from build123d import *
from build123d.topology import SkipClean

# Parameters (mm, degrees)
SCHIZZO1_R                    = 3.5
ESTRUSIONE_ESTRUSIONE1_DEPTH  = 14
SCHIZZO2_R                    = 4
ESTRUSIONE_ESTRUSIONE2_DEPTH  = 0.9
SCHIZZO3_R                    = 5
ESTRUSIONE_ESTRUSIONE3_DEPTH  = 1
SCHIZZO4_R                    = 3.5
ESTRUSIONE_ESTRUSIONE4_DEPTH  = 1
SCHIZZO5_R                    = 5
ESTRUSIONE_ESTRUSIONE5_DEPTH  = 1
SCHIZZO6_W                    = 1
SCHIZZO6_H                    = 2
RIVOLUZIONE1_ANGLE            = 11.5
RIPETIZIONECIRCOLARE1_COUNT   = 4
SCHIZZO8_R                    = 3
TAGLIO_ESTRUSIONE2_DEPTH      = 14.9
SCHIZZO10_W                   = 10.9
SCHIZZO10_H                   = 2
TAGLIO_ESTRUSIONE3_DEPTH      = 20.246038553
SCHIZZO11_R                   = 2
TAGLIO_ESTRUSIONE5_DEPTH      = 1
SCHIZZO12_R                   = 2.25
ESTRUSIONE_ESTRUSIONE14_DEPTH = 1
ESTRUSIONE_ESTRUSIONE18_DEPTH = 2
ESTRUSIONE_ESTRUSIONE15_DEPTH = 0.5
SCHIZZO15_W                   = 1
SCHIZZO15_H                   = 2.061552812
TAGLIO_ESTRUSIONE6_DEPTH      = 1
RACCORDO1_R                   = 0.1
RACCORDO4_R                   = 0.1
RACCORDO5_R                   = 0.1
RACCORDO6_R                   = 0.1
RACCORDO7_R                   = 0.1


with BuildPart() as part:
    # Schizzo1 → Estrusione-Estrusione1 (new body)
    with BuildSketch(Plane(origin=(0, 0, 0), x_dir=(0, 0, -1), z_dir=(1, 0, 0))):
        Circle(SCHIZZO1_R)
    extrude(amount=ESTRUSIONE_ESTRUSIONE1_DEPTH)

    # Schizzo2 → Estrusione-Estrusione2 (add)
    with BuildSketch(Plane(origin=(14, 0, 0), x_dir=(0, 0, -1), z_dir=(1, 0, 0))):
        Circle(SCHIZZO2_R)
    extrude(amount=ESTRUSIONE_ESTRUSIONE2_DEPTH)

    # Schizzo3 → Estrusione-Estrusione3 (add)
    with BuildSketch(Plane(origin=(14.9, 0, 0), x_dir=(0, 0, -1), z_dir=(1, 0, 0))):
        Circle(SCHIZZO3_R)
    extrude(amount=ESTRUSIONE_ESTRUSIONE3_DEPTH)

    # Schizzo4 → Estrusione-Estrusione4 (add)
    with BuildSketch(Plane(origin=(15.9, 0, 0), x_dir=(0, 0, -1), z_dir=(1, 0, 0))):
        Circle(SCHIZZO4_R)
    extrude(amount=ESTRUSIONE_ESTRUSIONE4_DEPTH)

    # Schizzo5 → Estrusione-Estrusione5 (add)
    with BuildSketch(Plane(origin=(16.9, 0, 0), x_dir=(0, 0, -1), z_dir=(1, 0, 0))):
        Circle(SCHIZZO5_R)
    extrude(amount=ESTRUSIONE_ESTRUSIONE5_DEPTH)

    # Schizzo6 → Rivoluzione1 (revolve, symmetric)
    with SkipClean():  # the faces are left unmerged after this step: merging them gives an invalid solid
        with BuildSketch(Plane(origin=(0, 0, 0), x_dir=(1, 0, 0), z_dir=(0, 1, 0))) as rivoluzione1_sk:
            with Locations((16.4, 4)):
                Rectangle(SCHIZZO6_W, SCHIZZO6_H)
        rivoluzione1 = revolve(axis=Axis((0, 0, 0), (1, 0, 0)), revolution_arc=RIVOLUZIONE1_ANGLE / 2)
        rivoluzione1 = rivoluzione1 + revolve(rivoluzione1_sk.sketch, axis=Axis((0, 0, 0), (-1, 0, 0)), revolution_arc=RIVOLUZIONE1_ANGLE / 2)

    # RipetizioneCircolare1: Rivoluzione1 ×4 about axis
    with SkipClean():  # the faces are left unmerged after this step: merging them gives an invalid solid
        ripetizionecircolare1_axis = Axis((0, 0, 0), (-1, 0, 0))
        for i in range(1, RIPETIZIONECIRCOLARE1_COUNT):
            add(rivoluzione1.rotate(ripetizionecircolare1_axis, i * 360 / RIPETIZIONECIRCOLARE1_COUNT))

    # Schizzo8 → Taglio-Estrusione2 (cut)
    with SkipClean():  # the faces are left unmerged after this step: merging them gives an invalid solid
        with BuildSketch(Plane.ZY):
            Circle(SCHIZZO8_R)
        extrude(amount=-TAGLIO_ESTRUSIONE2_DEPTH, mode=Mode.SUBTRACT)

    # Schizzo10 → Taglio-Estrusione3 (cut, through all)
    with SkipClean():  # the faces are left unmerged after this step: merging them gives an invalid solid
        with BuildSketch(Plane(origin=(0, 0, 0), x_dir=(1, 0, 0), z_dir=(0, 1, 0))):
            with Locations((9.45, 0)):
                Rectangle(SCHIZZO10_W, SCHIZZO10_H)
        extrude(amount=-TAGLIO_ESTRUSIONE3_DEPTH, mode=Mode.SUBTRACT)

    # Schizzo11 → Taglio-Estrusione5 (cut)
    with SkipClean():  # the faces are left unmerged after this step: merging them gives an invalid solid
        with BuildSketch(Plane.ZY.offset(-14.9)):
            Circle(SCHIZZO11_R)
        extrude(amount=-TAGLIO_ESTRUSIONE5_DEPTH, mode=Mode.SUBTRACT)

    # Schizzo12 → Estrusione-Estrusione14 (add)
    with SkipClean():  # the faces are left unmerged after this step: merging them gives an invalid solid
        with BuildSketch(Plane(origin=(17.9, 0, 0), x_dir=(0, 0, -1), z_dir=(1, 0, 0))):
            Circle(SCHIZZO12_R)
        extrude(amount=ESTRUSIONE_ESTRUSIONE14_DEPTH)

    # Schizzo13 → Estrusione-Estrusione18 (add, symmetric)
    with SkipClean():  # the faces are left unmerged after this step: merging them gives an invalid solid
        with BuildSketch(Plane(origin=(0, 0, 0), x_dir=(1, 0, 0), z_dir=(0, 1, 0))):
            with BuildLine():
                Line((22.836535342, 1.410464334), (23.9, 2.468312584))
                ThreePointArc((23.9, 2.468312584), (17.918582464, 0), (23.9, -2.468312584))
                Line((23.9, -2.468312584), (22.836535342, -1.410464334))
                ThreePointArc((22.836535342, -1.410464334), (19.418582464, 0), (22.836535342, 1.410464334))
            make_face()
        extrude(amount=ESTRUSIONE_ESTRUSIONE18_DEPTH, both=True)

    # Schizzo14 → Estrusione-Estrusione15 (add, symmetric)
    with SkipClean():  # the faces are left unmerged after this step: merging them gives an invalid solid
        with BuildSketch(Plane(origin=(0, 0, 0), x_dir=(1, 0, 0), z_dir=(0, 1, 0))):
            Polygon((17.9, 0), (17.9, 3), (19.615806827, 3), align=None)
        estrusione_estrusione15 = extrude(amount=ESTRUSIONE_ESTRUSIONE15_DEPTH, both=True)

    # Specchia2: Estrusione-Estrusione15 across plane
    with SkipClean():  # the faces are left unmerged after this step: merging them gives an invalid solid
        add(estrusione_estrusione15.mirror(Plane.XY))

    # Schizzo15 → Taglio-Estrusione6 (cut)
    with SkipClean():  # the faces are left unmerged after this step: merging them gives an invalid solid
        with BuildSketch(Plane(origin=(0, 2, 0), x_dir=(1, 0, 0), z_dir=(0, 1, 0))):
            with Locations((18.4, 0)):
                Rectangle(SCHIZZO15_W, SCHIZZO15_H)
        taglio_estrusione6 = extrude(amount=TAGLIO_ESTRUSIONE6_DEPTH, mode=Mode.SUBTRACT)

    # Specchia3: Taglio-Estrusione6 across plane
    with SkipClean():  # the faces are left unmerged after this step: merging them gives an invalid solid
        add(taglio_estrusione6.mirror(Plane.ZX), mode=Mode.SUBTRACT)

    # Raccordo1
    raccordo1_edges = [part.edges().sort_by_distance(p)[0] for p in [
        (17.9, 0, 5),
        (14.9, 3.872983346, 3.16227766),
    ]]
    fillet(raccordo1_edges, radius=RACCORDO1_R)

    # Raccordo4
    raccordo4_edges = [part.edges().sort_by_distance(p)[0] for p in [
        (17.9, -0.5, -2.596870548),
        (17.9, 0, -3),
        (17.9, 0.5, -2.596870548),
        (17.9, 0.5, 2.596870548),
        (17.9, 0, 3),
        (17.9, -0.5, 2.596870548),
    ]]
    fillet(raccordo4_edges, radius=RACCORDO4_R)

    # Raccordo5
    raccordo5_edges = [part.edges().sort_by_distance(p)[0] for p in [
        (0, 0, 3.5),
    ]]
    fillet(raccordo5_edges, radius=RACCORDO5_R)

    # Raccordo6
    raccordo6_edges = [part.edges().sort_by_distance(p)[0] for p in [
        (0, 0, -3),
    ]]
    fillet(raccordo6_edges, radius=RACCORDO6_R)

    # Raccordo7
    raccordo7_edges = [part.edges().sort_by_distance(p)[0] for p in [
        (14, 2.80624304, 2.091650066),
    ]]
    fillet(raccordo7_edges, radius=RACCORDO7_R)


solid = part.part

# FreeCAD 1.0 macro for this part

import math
import FreeCAD as App
import Part
import Sketcher


def edges_at(feature, points):
    """Names of the edges that pass closest to the given points."""
    edges = feature.Shape.Edges
    near = lambda p: min(range(len(edges)), key=lambda i: edges[i].distToShape(Part.Vertex(*p))[0])
    return sorted({f"Edge{near(p) + 1}" for p in points})


def add_polygon(sketch, points):
    """Adds a closed chain of lines whose ends are joined by coincident constraints."""
    first, n = sketch.GeometryCount, len(points)
    for a, b in zip(points, points[1:] + points[:1]):
        sketch.addGeometry(Part.LineSegment(App.Vector(*a, 0), App.Vector(*b, 0)), False)
    for i in range(n):
        sketch.addConstraint(Sketcher.Constraint("Coincident", first + i, 2, first + (i + 1) % n, 1))

doc = App.newDocument("Part")
body = doc.addObject("PartDesign::Body", "Body")

# Sketch on YZ plane
sketch1 = doc.addObject("Sketcher::SketchObject", "Sketch")
body.addObject(sketch1)
sketch1.AttachmentSupport = (doc.YZ_Plane, [""])
sketch1.MapMode = "FlatFace"
sketch1.addGeometry(Part.Circle(App.Vector(0, 0, 0), App.Vector(0, 0, 1), 3.5), False)
sketch1.addConstraint(Sketcher.Constraint("Coincident", 0, 3, -1, 1))
sketch1.addConstraint(Sketcher.Constraint("Diameter", 0, 7.0))
pad1 = doc.addObject("PartDesign::Pad", "Pad")
body.addObject(pad1)
pad1.Profile = sketch1
pad1.Length = 14

# Sketch on YZ plane
sketch2 = doc.addObject("Sketcher::SketchObject", "Sketch001")
body.addObject(sketch2)
sketch2.AttachmentSupport = (doc.YZ_Plane, [""])
sketch2.MapMode = "FlatFace"
sketch2.AttachmentOffset = App.Placement(App.Vector(0, 0, 14), App.Rotation())
sketch2.addGeometry(Part.Circle(App.Vector(0, 0, 0), App.Vector(0, 0, 1), 4), False)
sketch2.addConstraint(Sketcher.Constraint("Coincident", 0, 3, -1, 1))
sketch2.addConstraint(Sketcher.Constraint("Diameter", 0, 8.0))
pad2 = doc.addObject("PartDesign::Pad", "Pad001")
body.addObject(pad2)
pad2.Profile = sketch2
pad2.Length = 0.9

# Sketch on YZ plane
sketch3 = doc.addObject("Sketcher::SketchObject", "Sketch002")
body.addObject(sketch3)
sketch3.AttachmentSupport = (doc.YZ_Plane, [""])
sketch3.MapMode = "FlatFace"
sketch3.AttachmentOffset = App.Placement(App.Vector(0, 0, 14.9), App.Rotation())
sketch3.addGeometry(Part.Circle(App.Vector(0, 0, 0), App.Vector(0, 0, 1), 5), False)
sketch3.addConstraint(Sketcher.Constraint("Coincident", 0, 3, -1, 1))
sketch3.addConstraint(Sketcher.Constraint("Diameter", 0, 10.0))
pad3 = doc.addObject("PartDesign::Pad", "Pad002")
body.addObject(pad3)
pad3.Profile = sketch3
pad3.Length = 1

# Sketch on YZ plane
sketch4 = doc.addObject("Sketcher::SketchObject", "Sketch003")
body.addObject(sketch4)
sketch4.AttachmentSupport = (doc.YZ_Plane, [""])
sketch4.MapMode = "FlatFace"
sketch4.AttachmentOffset = App.Placement(App.Vector(0, 0, 15.9), App.Rotation())
sketch4.addGeometry(Part.Circle(App.Vector(0, 0, 0), App.Vector(0, 0, 1), 3.5), False)
sketch4.addConstraint(Sketcher.Constraint("Coincident", 0, 3, -1, 1))
sketch4.addConstraint(Sketcher.Constraint("Diameter", 0, 7.0))
pad4 = doc.addObject("PartDesign::Pad", "Pad003")
body.addObject(pad4)
pad4.Profile = sketch4
pad4.Length = 1

# Sketch on YZ plane
sketch5 = doc.addObject("Sketcher::SketchObject", "Sketch004")
body.addObject(sketch5)
sketch5.AttachmentSupport = (doc.YZ_Plane, [""])
sketch5.MapMode = "FlatFace"
sketch5.AttachmentOffset = App.Placement(App.Vector(0, 0, 16.9), App.Rotation())
sketch5.addGeometry(Part.Circle(App.Vector(0, 0, 0), App.Vector(0, 0, 1), 5), False)
sketch5.addConstraint(Sketcher.Constraint("Coincident", 0, 3, -1, 1))
sketch5.addConstraint(Sketcher.Constraint("Diameter", 0, 10.0))
pad5 = doc.addObject("PartDesign::Pad", "Pad004")
body.addObject(pad5)
pad5.Profile = sketch5
pad5.Length = 1

# Sketch on XZ plane
sketch6 = doc.addObject("Sketcher::SketchObject", "Sketch005")
body.addObject(sketch6)
sketch6.AttachmentSupport = (doc.XZ_Plane, [""])
sketch6.MapMode = "FlatFace"
add_polygon(sketch6, [(15.9, -5), (15.9, -3), (16.9, -3), (16.9, -5)])  # lines 0-3
sketch6.addConstraint(Sketcher.Constraint("Vertical", 0))
sketch6.addConstraint(Sketcher.Constraint("Horizontal", 1))
sketch6.addConstraint(Sketcher.Constraint("Vertical", 2))
sketch6.addConstraint(Sketcher.Constraint("Horizontal", 3))
sketch6.addConstraint(Sketcher.Constraint("DistanceX", 1, 1, 1, 2, 1.0))
sketch6.addConstraint(Sketcher.Constraint("DistanceY", 0, 1, 0, 2, 2.0))
sketch6.addConstraint(Sketcher.Constraint("DistanceY", 0, 2, -1, 1, 3.0))
sketch6.addConstraint(Sketcher.Constraint("DistanceX", -1, 1, 0, 2, 15.9))
revolution = doc.addObject("PartDesign::Revolution", "Revolution")
body.addObject(revolution)
revolution.Profile = sketch6
revolution.ReferenceAxis = (sketch6, ["H_Axis"])
revolution.Angle = 5.75

# Sketch on XZ plane
sketch7 = doc.addObject("Sketcher::SketchObject", "Sketch006")
body.addObject(sketch7)
sketch7.AttachmentSupport = (doc.XZ_Plane, [""])
sketch7.MapMode = "FlatFace"
add_polygon(sketch7, [(15.9, -5), (15.9, -3), (16.9, -3), (16.9, -5)])  # lines 0-3
sketch7.addConstraint(Sketcher.Constraint("Vertical", 0))
sketch7.addConstraint(Sketcher.Constraint("Horizontal", 1))
sketch7.addConstraint(Sketcher.Constraint("Vertical", 2))
sketch7.addConstraint(Sketcher.Constraint("Horizontal", 3))
sketch7.addConstraint(Sketcher.Constraint("DistanceX", 1, 1, 1, 2, 1.0))
sketch7.addConstraint(Sketcher.Constraint("DistanceY", 0, 1, 0, 2, 2.0))
sketch7.addConstraint(Sketcher.Constraint("DistanceY", 0, 2, -1, 1, 3.0))
sketch7.addConstraint(Sketcher.Constraint("DistanceX", -1, 1, 0, 2, 15.9))
revolution2 = doc.addObject("PartDesign::Revolution", "Revolution001")
body.addObject(revolution2)
revolution2.Profile = sketch7
revolution2.ReferenceAxis = (sketch7, ["H_Axis"])
revolution2.Angle = 5.75
revolution2.Reversed = True
doc.recompute()

polarpattern = doc.addObject("PartDesign::PolarPattern", "PolarPattern")
body.addObject(polarpattern)
polarpattern.Originals = [revolution, revolution2]
polarpattern.Axis = (doc.X_Axis, [""])
polarpattern.Angle = 360
polarpattern.Occurrences = 4
body.Tip = polarpattern

# Sketch on YZ plane
sketch8 = doc.addObject("Sketcher::SketchObject", "Sketch007")
body.addObject(sketch8)
sketch8.AttachmentSupport = (doc.YZ_Plane, [""])
sketch8.MapMode = "FlatFace"
sketch8.addGeometry(Part.Circle(App.Vector(0, 0, 0), App.Vector(0, 0, 1), 3), False)
sketch8.addConstraint(Sketcher.Constraint("Coincident", 0, 3, -1, 1))
sketch8.addConstraint(Sketcher.Constraint("Diameter", 0, 6.0))
pocket1 = doc.addObject("PartDesign::Pocket", "Pocket")
body.addObject(pocket1)
pocket1.Profile = sketch8
pocket1.Length = 14.9
pocket1.Reversed = True

# Sketch on XZ plane
sketch9 = doc.addObject("Sketcher::SketchObject", "Sketch008")
body.addObject(sketch9)
sketch9.AttachmentSupport = (doc.XZ_Plane, [""])
sketch9.MapMode = "FlatFace"
add_polygon(sketch9, [(4, -1), (4, 1), (14.9, 1), (14.9, -1)])  # lines 0-3
sketch9.addConstraint(Sketcher.Constraint("Vertical", 0))
sketch9.addConstraint(Sketcher.Constraint("Horizontal", 1))
sketch9.addConstraint(Sketcher.Constraint("Vertical", 2))
sketch9.addConstraint(Sketcher.Constraint("Horizontal", 3))
sketch9.addConstraint(Sketcher.Constraint("DistanceY", 0, 1, 0, 2, 2.0))
sketch9.addConstraint(Sketcher.Constraint("DistanceX", 1, 1, 1, 2, 10.9))
sketch9.addConstraint(Sketcher.Constraint("DistanceX", -1, 1, 0, 2, 4.0))
sketch9.addConstraint(Sketcher.Constraint("DistanceY", -1, 1, 0, 2, 1.0))
pocket2 = doc.addObject("PartDesign::Pocket", "Pocket001")
body.addObject(pocket2)
pocket2.Profile = sketch9
pocket2.Type = "ThroughAll"
pocket2.Reversed = True

# Sketch on YZ plane
sketch10 = doc.addObject("Sketcher::SketchObject", "Sketch009")
body.addObject(sketch10)
sketch10.AttachmentSupport = (doc.YZ_Plane, [""])
sketch10.MapMode = "FlatFace"
sketch10.AttachmentOffset = App.Placement(App.Vector(0, 0, 14.9), App.Rotation())
sketch10.addGeometry(Part.Circle(App.Vector(0, 0, 0), App.Vector(0, 0, 1), 2), False)
sketch10.addConstraint(Sketcher.Constraint("Coincident", 0, 3, -1, 1))
sketch10.addConstraint(Sketcher.Constraint("Diameter", 0, 4.0))
pocket3 = doc.addObject("PartDesign::Pocket", "Pocket002")
body.addObject(pocket3)
pocket3.Profile = sketch10
pocket3.Length = 1
pocket3.Reversed = True

# Sketch on YZ plane
sketch11 = doc.addObject("Sketcher::SketchObject", "Sketch010")
body.addObject(sketch11)
sketch11.AttachmentSupport = (doc.YZ_Plane, [""])
sketch11.MapMode = "FlatFace"
sketch11.AttachmentOffset = App.Placement(App.Vector(0, 0, 17.9), App.Rotation())
sketch11.addGeometry(Part.Circle(App.Vector(0, 0, 0), App.Vector(0, 0, 1), 2.25), False)
sketch11.addConstraint(Sketcher.Constraint("Coincident", 0, 3, -1, 1))
sketch11.addConstraint(Sketcher.Constraint("Diameter", 0, 4.5))
pad6 = doc.addObject("PartDesign::Pad", "Pad005")
body.addObject(pad6)
pad6.Profile = sketch11
pad6.Length = 1

# Sketch on XZ plane
sketch12 = doc.addObject("Sketcher::SketchObject", "Sketch011")
body.addObject(sketch12)
sketch12.AttachmentSupport = (doc.XZ_Plane, [""])
sketch12.MapMode = "FlatFace"
sketch12.addGeometry(Part.LineSegment(App.Vector(22.836535, -1.410464, 0), App.Vector(23.9, -2.468313, 0)), False)
sketch12.addGeometry(Part.ArcOfCircle(Part.Circle(App.Vector(21.418582, 0, 0), App.Vector(0, 0, 1), 3.5), math.radians(44.848304), math.radians(315.151696)), False)
sketch12.addGeometry(Part.LineSegment(App.Vector(23.9, 2.468313, 0), App.Vector(22.836535, 1.410464, 0)), False)
sketch12.addGeometry(Part.ArcOfCircle(Part.Circle(App.Vector(21.418582, 0, 0), App.Vector(0, 0, 1), 2), math.radians(44.848304), math.radians(315.151696)), False)
sketch12.addConstraint(Sketcher.Constraint("Coincident", 0, 2, 1, 2))
sketch12.addConstraint(Sketcher.Constraint("Coincident", 1, 1, 2, 1))
sketch12.addConstraint(Sketcher.Constraint("Coincident", 2, 2, 3, 1))
sketch12.addConstraint(Sketcher.Constraint("Coincident", 3, 2, 0, 1))
sketch12.addConstraint(Sketcher.Constraint("Coincident", 3, 3, 1, 3))
sketch12.addConstraint(Sketcher.Constraint("Symmetric", 0, 2, 1, 1, -1))
sketch12.addConstraint(Sketcher.Constraint("Vertical", 2, 2, 3, 2))
sketch12.addConstraint(Sketcher.Constraint("Radius", 3, 2.0))
sketch12.addConstraint(Sketcher.Constraint("Radius", 1, 3.5))
sketch12.addConstraint(Sketcher.Constraint("DistanceX", -1, 1, 0, 2, 23.9))
sketch12.addConstraint(Sketcher.Constraint("DistanceY", 2, 2, 1, 1, 1.057848))
sketch12.addConstraint(Sketcher.Constraint("DistanceY", 3, 2, 2, 2, 2.820929))
pad7 = doc.addObject("PartDesign::Pad", "Pad006")
body.addObject(pad7)
pad7.Profile = sketch12
pad7.Length = 4
pad7.Midplane = True

# Sketch on XZ plane
sketch13 = doc.addObject("Sketcher::SketchObject", "Sketch012")
body.addObject(sketch13)
sketch13.AttachmentSupport = (doc.XZ_Plane, [""])
sketch13.MapMode = "FlatFace"
add_polygon(sketch13, [(17.9, -3), (17.9, 0), (19.615807, -3)])  # lines 0-2
sketch13.addConstraint(Sketcher.Constraint("Vertical", 0))
sketch13.addConstraint(Sketcher.Constraint("Horizontal", 2))
sketch13.addConstraint(Sketcher.Constraint("PointOnObject", 0, 2, -1))
sketch13.addConstraint(Sketcher.Constraint("DistanceY", 0, 1, 0, 2, 3.0))
sketch13.addConstraint(Sketcher.Constraint("DistanceX", -1, 1, 0, 2, 17.9))
sketch13.addConstraint(Sketcher.Constraint("Distance", 1, 3.456008))
pad8 = doc.addObject("PartDesign::Pad", "Pad007")
body.addObject(pad8)
pad8.Profile = sketch13
pad8.Length = 1
pad8.Midplane = True
doc.recompute()

mirrored = doc.addObject("PartDesign::Mirrored", "Mirrored")
body.addObject(mirrored)
mirrored.Originals = [pad8]
mirrored.MirrorPlane = (doc.XY_Plane, [""])
body.Tip = mirrored

# Sketch on XZ plane
sketch14 = doc.addObject("Sketcher::SketchObject", "Sketch013")
body.addObject(sketch14)
sketch14.AttachmentSupport = (doc.XZ_Plane, [""])
sketch14.MapMode = "FlatFace"
sketch14.AttachmentOffset = App.Placement(App.Vector(0, 0, -2), App.Rotation())
add_polygon(sketch14, [(17.9, -1.030776), (17.9, 1.030776), (18.9, 1.030776), (18.9, -1.030776)])  # lines 0-3
sketch14.addConstraint(Sketcher.Constraint("Vertical", 0))
sketch14.addConstraint(Sketcher.Constraint("Horizontal", 1))
sketch14.addConstraint(Sketcher.Constraint("Vertical", 2))
sketch14.addConstraint(Sketcher.Constraint("Horizontal", 3))
sketch14.addConstraint(Sketcher.Constraint("DistanceX", 1, 1, 1, 2, 1.0))
sketch14.addConstraint(Sketcher.Constraint("DistanceX", -1, 1, 0, 2, 17.9))
sketch14.addConstraint(Sketcher.Constraint("DistanceY", 0, 1, 0, 2, 2.061553))
sketch14.addConstraint(Sketcher.Constraint("DistanceY", -1, 1, 0, 2, 1.030776))
pocket4 = doc.addObject("PartDesign::Pocket", "Pocket003")
body.addObject(pocket4)
pocket4.Profile = sketch14
pocket4.Length = 1
doc.recompute()

mirrored2 = doc.addObject("PartDesign::Mirrored", "Mirrored001")
body.addObject(mirrored2)
mirrored2.Originals = [pocket4]
mirrored2.MirrorPlane = (doc.XZ_Plane, [""])
body.Tip = mirrored2
doc.recompute()

fillet = doc.addObject("PartDesign::Fillet", "Fillet")
body.addObject(fillet)
fillet.Base = (mirrored2, edges_at(mirrored2, [(17.9, 0, 5), (14.9, 3.873, 3.162)]))
fillet.Radius = 0.1
doc.recompute()

fillet2 = doc.addObject("PartDesign::Fillet", "Fillet001")
body.addObject(fillet2)
fillet2.Base = (fillet, edges_at(fillet, [
    (17.9, -0.5, -2.597),
    (17.9, 0, -3),
    (17.9, 0.5, -2.597),
    (17.9, 0.5, 2.597),
    (17.9, 0, 3),
    (17.9, -0.5, 2.597),
]))
fillet2.Radius = 0.1
doc.recompute()

fillet3 = doc.addObject("PartDesign::Fillet", "Fillet002")
body.addObject(fillet3)
fillet3.Base = (fillet2, edges_at(fillet2, [(0, 0, 3.5)]))
fillet3.Radius = 0.1
doc.recompute()

fillet4 = doc.addObject("PartDesign::Fillet", "Fillet003")
body.addObject(fillet4)
fillet4.Base = (fillet3, edges_at(fillet3, [(0, 0, -3)]))
fillet4.Radius = 0.1
doc.recompute()

fillet5 = doc.addObject("PartDesign::Fillet", "Fillet004")
body.addObject(fillet5)
fillet5.Base = (fillet4, edges_at(fillet4, [(14, 2.806, 2.092)]))
fillet5.Radius = 0.1

doc.recompute()
